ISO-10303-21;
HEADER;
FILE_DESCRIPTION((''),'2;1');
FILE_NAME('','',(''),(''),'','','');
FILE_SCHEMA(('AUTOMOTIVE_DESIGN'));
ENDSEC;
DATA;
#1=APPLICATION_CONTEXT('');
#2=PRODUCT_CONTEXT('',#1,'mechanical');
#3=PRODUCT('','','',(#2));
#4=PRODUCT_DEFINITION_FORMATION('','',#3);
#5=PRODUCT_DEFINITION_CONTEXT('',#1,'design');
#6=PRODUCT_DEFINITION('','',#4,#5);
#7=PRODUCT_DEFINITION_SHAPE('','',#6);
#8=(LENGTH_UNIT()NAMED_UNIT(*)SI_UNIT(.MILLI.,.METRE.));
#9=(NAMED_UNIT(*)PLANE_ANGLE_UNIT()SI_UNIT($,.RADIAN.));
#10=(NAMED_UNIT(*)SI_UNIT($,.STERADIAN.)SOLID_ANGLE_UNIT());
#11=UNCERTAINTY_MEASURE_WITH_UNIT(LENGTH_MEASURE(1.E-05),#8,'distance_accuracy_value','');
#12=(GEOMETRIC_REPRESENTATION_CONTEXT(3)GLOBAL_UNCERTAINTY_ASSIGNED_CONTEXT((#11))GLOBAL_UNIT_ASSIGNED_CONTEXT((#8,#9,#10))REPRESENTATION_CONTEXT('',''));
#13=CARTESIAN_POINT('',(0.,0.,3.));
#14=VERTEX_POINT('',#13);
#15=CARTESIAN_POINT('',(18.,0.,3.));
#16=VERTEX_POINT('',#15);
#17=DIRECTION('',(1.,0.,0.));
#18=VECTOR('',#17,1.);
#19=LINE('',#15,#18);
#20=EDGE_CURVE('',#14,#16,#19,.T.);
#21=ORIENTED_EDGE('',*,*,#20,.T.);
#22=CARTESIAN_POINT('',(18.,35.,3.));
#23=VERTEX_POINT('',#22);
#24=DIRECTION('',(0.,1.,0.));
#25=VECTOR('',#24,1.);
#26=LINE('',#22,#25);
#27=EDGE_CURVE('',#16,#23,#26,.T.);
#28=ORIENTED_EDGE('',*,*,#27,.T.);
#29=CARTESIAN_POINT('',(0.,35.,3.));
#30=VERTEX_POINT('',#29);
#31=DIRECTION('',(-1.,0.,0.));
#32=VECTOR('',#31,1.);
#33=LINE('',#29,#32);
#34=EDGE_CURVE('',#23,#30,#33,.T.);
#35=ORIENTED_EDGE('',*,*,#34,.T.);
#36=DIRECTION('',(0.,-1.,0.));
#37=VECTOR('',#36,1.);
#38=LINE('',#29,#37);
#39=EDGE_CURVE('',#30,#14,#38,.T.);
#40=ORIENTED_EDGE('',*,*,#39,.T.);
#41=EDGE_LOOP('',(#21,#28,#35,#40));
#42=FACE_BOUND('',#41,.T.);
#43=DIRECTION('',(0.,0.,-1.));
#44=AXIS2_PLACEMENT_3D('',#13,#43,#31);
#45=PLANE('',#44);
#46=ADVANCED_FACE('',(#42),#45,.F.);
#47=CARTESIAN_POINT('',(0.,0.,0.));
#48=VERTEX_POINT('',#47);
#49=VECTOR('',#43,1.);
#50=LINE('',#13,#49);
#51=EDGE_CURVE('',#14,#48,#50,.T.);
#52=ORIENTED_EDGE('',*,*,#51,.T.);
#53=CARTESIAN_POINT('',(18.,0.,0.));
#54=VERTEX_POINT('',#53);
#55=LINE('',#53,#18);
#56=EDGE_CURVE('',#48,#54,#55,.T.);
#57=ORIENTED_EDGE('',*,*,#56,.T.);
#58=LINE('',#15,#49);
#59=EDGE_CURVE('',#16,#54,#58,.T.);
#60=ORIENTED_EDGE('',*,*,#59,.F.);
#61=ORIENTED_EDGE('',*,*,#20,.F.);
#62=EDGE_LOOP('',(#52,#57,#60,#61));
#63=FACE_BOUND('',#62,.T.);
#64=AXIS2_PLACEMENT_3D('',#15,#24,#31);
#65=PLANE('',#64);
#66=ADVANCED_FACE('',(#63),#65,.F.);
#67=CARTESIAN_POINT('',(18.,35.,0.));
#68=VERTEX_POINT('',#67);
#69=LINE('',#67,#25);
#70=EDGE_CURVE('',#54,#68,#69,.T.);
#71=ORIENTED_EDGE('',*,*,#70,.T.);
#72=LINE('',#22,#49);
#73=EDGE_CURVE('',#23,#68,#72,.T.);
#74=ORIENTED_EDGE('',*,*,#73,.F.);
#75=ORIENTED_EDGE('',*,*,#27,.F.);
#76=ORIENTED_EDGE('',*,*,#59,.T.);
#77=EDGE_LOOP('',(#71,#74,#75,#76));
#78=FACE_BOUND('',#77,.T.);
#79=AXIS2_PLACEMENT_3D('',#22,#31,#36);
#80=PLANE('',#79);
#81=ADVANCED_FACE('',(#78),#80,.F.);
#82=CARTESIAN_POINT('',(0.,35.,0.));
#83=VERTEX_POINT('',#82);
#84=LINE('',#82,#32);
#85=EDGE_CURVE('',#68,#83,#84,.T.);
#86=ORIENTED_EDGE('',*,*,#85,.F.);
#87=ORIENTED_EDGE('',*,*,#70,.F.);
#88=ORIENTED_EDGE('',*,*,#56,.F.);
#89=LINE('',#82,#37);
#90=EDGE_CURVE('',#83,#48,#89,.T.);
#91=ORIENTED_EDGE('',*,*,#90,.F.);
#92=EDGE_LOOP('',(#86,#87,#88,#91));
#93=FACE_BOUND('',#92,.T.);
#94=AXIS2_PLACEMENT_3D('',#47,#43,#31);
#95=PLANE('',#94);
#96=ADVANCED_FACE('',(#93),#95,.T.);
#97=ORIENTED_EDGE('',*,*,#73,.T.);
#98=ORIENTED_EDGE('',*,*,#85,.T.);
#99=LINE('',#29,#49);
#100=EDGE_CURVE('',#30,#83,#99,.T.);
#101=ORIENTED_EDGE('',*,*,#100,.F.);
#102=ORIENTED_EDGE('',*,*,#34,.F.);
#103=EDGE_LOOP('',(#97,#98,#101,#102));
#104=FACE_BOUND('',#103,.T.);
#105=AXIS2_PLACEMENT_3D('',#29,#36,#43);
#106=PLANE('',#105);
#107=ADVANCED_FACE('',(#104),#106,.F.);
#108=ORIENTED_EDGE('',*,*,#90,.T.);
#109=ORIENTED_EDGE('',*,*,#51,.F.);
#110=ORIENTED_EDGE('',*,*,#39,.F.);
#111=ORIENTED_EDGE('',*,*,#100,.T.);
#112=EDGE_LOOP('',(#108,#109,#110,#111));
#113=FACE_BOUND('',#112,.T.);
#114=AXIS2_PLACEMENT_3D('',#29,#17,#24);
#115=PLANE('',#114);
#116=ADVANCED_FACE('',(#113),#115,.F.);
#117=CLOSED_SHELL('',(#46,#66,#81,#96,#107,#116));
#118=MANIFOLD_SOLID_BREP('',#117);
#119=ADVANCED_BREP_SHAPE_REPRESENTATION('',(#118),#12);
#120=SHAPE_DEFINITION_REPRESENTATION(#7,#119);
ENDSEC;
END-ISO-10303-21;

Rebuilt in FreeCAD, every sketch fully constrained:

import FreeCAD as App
import Part
import Sketcher
from FreeCAD import Vector
Q = App.Units.Quantity

doc = App.newDocument("Part")
params = doc.addObject("Spreadsheet::Sheet", "Params")
for row, (alias, value) in enumerate([
    ("sketch1_width", "18 mm"),
    ("sketch1_height", "35 mm"),
    ("pad1_length", "3 mm"),
], start=1):
    params.set(f"A{row}", alias)
    params.set(f"B{row}", "=" + value)
    params.setAlias(f"B{row}", alias)

body = doc.addObject("PartDesign::Body", "Body")

# Sketch on XY plane
sketch1 = body.newObject("Sketcher::SketchObject", "Sketch")
sketch1.AttachmentSupport = (doc.getObject("XY_Plane"), [""])
sketch1.MapMode = "FlatFace"
sketch1.addGeometry(Part.LineSegment(Vector(0, 35, 0), Vector(0, 0, 0)), False)
sketch1.addGeometry(Part.LineSegment(Vector(0, 0, 0), Vector(18, 0, 0)), False)
sketch1.addGeometry(Part.LineSegment(Vector(18, 0, 0), Vector(18, 35, 0)), False)
sketch1.addGeometry(Part.LineSegment(Vector(18, 35, 0), Vector(0, 35, 0)), False)
sketch1.addConstraint(Sketcher.Constraint("Coincident", 0, 2, 1, 1))
sketch1.addConstraint(Sketcher.Constraint("Coincident", 1, 2, 2, 1))
sketch1.addConstraint(Sketcher.Constraint("Coincident", 2, 2, 3, 1))
sketch1.addConstraint(Sketcher.Constraint("Coincident", 3, 2, 0, 1))
sketch1.addConstraint(Sketcher.Constraint("Vertical", 0))
sketch1.addConstraint(Sketcher.Constraint("Horizontal", 1))
sketch1.addConstraint(Sketcher.Constraint("Vertical", 2))
sketch1.addConstraint(Sketcher.Constraint("Horizontal", 3))
sketch1.addConstraint(Sketcher.Constraint("Coincident", 0, 2, -1, 1))
sketch1.addConstraint(Sketcher.Constraint("DistanceX", 1, 1, 1, 2, Q("18 mm")))
sketch1.addConstraint(Sketcher.Constraint("DistanceY", 0, 2, 0, 1, Q("35 mm")))
sketch1.setExpression("Constraints[9]", "Params.sketch1_width")
sketch1.setExpression("Constraints[10]", "Params.sketch1_height")
pad1 = body.newObject("PartDesign::Pad", "Pad")
pad1.Profile = sketch1
pad1.setExpression("Length", "Params.pad1_length")

doc.recompute()
